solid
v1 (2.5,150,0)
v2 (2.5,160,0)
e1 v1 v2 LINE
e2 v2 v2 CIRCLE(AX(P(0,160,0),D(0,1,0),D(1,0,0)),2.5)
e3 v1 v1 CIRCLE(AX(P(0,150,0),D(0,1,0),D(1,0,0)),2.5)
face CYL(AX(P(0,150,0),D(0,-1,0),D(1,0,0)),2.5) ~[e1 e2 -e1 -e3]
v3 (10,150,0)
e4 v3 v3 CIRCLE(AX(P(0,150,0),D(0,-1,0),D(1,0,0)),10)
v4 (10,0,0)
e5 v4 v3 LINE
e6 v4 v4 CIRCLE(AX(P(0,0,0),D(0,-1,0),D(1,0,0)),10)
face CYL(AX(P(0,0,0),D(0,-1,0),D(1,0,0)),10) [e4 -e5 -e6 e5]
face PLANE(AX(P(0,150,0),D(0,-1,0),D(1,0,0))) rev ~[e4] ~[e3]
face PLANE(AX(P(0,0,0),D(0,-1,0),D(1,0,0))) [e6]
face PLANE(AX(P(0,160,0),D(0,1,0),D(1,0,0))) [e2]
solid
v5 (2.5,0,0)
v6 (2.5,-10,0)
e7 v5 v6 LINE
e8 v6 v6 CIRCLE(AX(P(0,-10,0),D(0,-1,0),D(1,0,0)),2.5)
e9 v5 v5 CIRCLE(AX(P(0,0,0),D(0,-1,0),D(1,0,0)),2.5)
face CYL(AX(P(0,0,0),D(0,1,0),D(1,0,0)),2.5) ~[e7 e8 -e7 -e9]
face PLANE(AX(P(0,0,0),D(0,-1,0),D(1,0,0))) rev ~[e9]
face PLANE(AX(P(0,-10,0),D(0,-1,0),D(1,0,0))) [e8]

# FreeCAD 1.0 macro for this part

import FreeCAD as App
import Part
import Sketcher

V = App.Vector
Q = App.Units.Quantity

doc = App.newDocument("Part")
body = doc.addObject("PartDesign::Body", "Body")

sketch1 = doc.addObject("Sketcher::SketchObject", "Sketch")
body.addObject(sketch1)
sketch1.AttachmentSupport = (doc.XZ_Plane, [""])
sketch1.MapMode = "FlatFace"
sketch1.addGeometry(Part.Circle(V(0, 0, 0), V(0, 0, 1), 10), False)
sketch1.addConstraint(Sketcher.Constraint("Coincident", 0, 3, -1, 1))
sketch1.addConstraint(Sketcher.Constraint("Diameter", 0, Q("20 mm")))
pad1 = doc.addObject("PartDesign::Pad", "Pad")
body.addObject(pad1)
pad1.Profile = sketch1
pad1.Length = 150
pad1.Reversed = True

sketch2 = doc.addObject("Sketcher::SketchObject", "Sketch001")
body.addObject(sketch2)
sketch2.AttachmentSupport = (doc.XZ_Plane, [""])
sketch2.MapMode = "FlatFace"
sketch2.AttachmentOffset = App.Placement(V(0, 0, -150), App.Rotation())
sketch2.addGeometry(Part.Circle(V(0, 0, 0), V(0, 0, 1), 2.5), False)
sketch2.addConstraint(Sketcher.Constraint("Coincident", 0, 3, -1, 1))
sketch2.addConstraint(Sketcher.Constraint("Diameter", 0, Q("5 mm")))
pad2 = doc.addObject("PartDesign::Pad", "Pad001")
body.addObject(pad2)
pad2.Profile = sketch2
pad2.Length = 10
pad2.Reversed = True
body2 = doc.addObject("PartDesign::Body", "Body001")

sketch3 = doc.addObject("Sketcher::SketchObject", "Sketch002")
body2.addObject(sketch3)
sketch3.AttachmentSupport = (doc.getObject("XZ_Plane001"), [""])
sketch3.MapMode = "FlatFace"
sketch3.addGeometry(Part.Circle(V(0, 0, 0), V(0, 0, 1), 2.5), False)
sketch3.addConstraint(Sketcher.Constraint("Coincident", 0, 3, -1, 1))
sketch3.addConstraint(Sketcher.Constraint("Diameter", 0, Q("5 mm")))
pad3 = doc.addObject("PartDesign::Pad", "Pad002")
body2.addObject(pad3)
pad3.Profile = sketch3
pad3.Length = 10

doc.recompute()
